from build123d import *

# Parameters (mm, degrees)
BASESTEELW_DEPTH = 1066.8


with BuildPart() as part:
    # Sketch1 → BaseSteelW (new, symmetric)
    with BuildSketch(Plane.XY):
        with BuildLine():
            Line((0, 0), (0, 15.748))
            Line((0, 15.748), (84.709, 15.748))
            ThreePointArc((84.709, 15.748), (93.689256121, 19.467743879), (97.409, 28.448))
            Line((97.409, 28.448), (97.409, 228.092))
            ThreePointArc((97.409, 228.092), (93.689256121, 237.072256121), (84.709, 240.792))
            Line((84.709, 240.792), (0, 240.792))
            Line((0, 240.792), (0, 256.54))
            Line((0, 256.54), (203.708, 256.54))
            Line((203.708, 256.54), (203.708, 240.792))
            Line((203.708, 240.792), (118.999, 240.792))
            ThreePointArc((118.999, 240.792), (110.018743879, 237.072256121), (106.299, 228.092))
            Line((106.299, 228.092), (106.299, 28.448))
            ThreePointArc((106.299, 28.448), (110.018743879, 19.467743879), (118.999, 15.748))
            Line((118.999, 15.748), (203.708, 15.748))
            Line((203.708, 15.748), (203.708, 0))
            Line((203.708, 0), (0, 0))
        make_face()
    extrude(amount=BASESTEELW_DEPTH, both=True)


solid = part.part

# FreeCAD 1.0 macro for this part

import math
import FreeCAD as App
import Part
import Sketcher
Q = App.Units.Quantity

doc = App.newDocument("Part")
body = doc.addObject("PartDesign::Body", "Body")

sketch1 = body.newObject("Sketcher::SketchObject", "Sketch")
sketch1.AttachmentSupport = (doc.getObject("XY_Plane"), [""])
sketch1.MapMode = "FlatFace"
sketch1.addGeometry(Part.LineSegment(App.Vector(0, 16, 0), App.Vector(0, 0, 0)), False)
sketch1.addGeometry(Part.LineSegment(App.Vector(0, 0, 0), App.Vector(204, 0, 0)), False)
sketch1.addGeometry(Part.LineSegment(App.Vector(204, 0, 0), App.Vector(204, 16, 0)), False)
sketch1.addGeometry(Part.LineSegment(App.Vector(204, 16, 0), App.Vector(119, 16, 0)), False)
sketch1.addGeometry(Part.ArcOfCircle(Part.Circle(App.Vector(119, 28, 0), App.Vector(0, 0, 1), 13), math.radians(180), math.radians(270)), False)
sketch1.addGeometry(Part.LineSegment(App.Vector(106, 28, 0), App.Vector(106, 228, 0)), False)
sketch1.addGeometry(Part.ArcOfCircle(Part.Circle(App.Vector(119, 228, 0), App.Vector(0, 0, 1), 13), math.radians(90), math.radians(180)), False)
sketch1.addGeometry(Part.LineSegment(App.Vector(119, 241, 0), App.Vector(204, 241, 0)), False)
sketch1.addGeometry(Part.LineSegment(App.Vector(204, 241, 0), App.Vector(204, 257, 0)), False)
sketch1.addGeometry(Part.LineSegment(App.Vector(204, 257, 0), App.Vector(0, 257, 0)), False)
sketch1.addGeometry(Part.LineSegment(App.Vector(0, 257, 0), App.Vector(0, 241, 0)), False)
sketch1.addGeometry(Part.LineSegment(App.Vector(0, 241, 0), App.Vector(85, 241, 0)), False)
sketch1.addGeometry(Part.ArcOfCircle(Part.Circle(App.Vector(85, 228, 0), App.Vector(0, 0, 1), 13), math.radians(0), math.radians(90)), False)
sketch1.addGeometry(Part.LineSegment(App.Vector(97, 228, 0), App.Vector(97, 28, 0)), False)
sketch1.addGeometry(Part.ArcOfCircle(Part.Circle(App.Vector(85, 28, 0), App.Vector(0, 0, 1), 13), math.radians(-90), math.radians(0)), False)
sketch1.addGeometry(Part.LineSegment(App.Vector(85, 16, 0), App.Vector(0, 16, 0)), False)
sketch1.addConstraint(Sketcher.Constraint("Coincident", 0, 2, 1, 1))
sketch1.addConstraint(Sketcher.Constraint("Coincident", 1, 2, 2, 1))
sketch1.addConstraint(Sketcher.Constraint("Coincident", 2, 2, 3, 1))
sketch1.addConstraint(Sketcher.Constraint("Tangent", 3, 2, 4, 2))
sketch1.addConstraint(Sketcher.Constraint("Tangent", 4, 1, 5, 1))
sketch1.addConstraint(Sketcher.Constraint("Tangent", 5, 2, 6, 2))
sketch1.addConstraint(Sketcher.Constraint("Tangent", 6, 1, 7, 1))
sketch1.addConstraint(Sketcher.Constraint("Coincident", 7, 2, 8, 1))
sketch1.addConstraint(Sketcher.Constraint("Coincident", 8, 2, 9, 1))
sketch1.addConstraint(Sketcher.Constraint("Coincident", 9, 2, 10, 1))
sketch1.addConstraint(Sketcher.Constraint("Coincident", 10, 2, 11, 1))
sketch1.addConstraint(Sketcher.Constraint("Tangent", 11, 2, 12, 2))
sketch1.addConstraint(Sketcher.Constraint("Tangent", 12, 1, 13, 1))
sketch1.addConstraint(Sketcher.Constraint("Tangent", 13, 2, 14, 2))
sketch1.addConstraint(Sketcher.Constraint("Tangent", 14, 1, 15, 1))
sketch1.addConstraint(Sketcher.Constraint("Coincident", 15, 2, 0, 1))
sketch1.addConstraint(Sketcher.Constraint("Vertical", 0))
sketch1.addConstraint(Sketcher.Constraint("Horizontal", 1))
sketch1.addConstraint(Sketcher.Constraint("Vertical", 2))
sketch1.addConstraint(Sketcher.Constraint("Horizontal", 3))
sketch1.addConstraint(Sketcher.Constraint("Vertical", 5))
sketch1.addConstraint(Sketcher.Constraint("Horizontal", 7))
sketch1.addConstraint(Sketcher.Constraint("Vertical", 8))
sketch1.addConstraint(Sketcher.Constraint("Horizontal", 9))
sketch1.addConstraint(Sketcher.Constraint("Vertical", 10))
sketch1.addConstraint(Sketcher.Constraint("Horizontal", 11))
sketch1.addConstraint(Sketcher.Constraint("Vertical", 13))
sketch1.addConstraint(Sketcher.Constraint("Horizontal", 15))
sketch1.addConstraint(Sketcher.Constraint("Coincident", 0, 2, -1, 1))
sketch1.addConstraint(Sketcher.Constraint("Equal", 4, 6))
sketch1.addConstraint(Sketcher.Constraint("Equal", 6, 12))
sketch1.addConstraint(Sketcher.Constraint("Equal", 12, 14))
sketch1.addConstraint(Sketcher.Constraint("PointOnObject", 9, 2, -2))
sketch1.addConstraint(Sketcher.Constraint("Horizontal", 6, 3, 12, 3))
sketch1.addConstraint(Sketcher.Constraint("Horizontal", 4, 3, 14, 3))
sketch1.addConstraint(Sketcher.Constraint("Vertical", 2, 2, 7, 2))
sketch1.addConstraint(Sketcher.Constraint("Equal", 7, 11))
sketch1.addConstraint(Sketcher.Constraint("Equal", 2, 8))
sketch1.addConstraint(Sketcher.Constraint("Radius", 4, Q("0.5 in")))
sketch1.addConstraint(Sketcher.Constraint("DistanceX", 1, 1, 1, 2, Q("8.02 in")))
sketch1.addConstraint(Sketcher.Constraint("DistanceY", 0, 2, 0, 1, Q("0.62 in")))
sketch1.addConstraint(Sketcher.Constraint("DistanceY", 5, 1, 5, 2, Q("7.86 in")))
sketch1.addConstraint(Sketcher.Constraint("DistanceX", 3, 2, 3, 1, Q("3.335 in")))
pad1 = body.newObject("PartDesign::Pad", "Pad")
pad1.Profile = sketch1
pad1.Length = Q("84 in")
pad1.Midplane = True

doc.recompute()
